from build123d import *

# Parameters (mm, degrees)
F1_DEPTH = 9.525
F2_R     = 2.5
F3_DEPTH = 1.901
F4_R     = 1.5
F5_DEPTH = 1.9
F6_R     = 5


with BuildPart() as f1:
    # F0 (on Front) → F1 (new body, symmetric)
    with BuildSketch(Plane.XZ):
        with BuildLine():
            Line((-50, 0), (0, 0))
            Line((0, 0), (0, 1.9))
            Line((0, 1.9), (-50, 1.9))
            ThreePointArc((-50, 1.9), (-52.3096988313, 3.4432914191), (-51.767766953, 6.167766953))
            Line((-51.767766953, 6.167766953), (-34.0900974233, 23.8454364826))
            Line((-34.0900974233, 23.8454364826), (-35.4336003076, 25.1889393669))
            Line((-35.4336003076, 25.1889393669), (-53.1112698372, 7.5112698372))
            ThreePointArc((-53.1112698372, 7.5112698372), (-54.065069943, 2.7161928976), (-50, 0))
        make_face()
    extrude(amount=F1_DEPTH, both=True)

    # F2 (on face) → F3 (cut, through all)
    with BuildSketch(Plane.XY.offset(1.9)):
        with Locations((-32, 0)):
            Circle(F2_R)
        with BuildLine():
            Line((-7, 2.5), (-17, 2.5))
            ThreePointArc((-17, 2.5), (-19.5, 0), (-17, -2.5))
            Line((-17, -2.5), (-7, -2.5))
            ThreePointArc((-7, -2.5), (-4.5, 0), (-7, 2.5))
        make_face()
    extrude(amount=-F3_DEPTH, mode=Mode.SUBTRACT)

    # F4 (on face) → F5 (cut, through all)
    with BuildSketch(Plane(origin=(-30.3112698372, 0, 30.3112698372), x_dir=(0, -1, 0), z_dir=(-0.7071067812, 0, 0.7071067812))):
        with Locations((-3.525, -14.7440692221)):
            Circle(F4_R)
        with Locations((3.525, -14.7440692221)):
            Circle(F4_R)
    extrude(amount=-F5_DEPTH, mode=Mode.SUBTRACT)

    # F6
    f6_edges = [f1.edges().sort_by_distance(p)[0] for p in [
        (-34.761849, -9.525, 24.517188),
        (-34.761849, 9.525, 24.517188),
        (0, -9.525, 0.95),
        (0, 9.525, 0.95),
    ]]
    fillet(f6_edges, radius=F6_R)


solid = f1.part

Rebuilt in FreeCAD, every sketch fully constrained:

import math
import FreeCAD as App
import Part
import Sketcher
Q = App.Units.Quantity


def edges_at(feature, points):
    """Names of the edges that pass closest to the given points."""
    edges = feature.Shape.Edges
    near = lambda p: min(range(len(edges)), key=lambda i: edges[i].distToShape(Part.Vertex(*p))[0])
    return sorted({f"Edge{near(p) + 1}" for p in points})

doc = App.newDocument("Part")
body = doc.addObject("PartDesign::Body", "Body")

sketch1 = body.newObject("Sketcher::SketchObject", "Sketch")
sketch1.AttachmentSupport = (doc.getObject("XZ_Plane"), [""])
sketch1.MapMode = "FlatFace"
sketch1.addGeometry([
    Part.LineSegment(App.Vector(-50, 0, 0), App.Vector(0, 0, 0)),
    Part.LineSegment(App.Vector(0, 0, 0), App.Vector(0, 1.9, 0)),
    Part.LineSegment(App.Vector(0, 1.9, 0), App.Vector(-50, 1.9, 0)),
    Part.ArcOfCircle(Part.Circle(App.Vector(-50, 4.4, 0), App.Vector(0, 0, 1), 2.5), math.radians(135), math.radians(270)),
    Part.LineSegment(App.Vector(-51.767767, 6.167767, 0), App.Vector(-34.090097, 23.845436, 0)),
    Part.LineSegment(App.Vector(-34.090097, 23.845436, 0), App.Vector(-35.4336, 25.188939, 0)),
    Part.LineSegment(App.Vector(-35.4336, 25.188939, 0), App.Vector(-53.11127, 7.51127, 0)),
    Part.ArcOfCircle(Part.Circle(App.Vector(-50, 4.4, 0), App.Vector(0, 0, 1), 4.4), math.radians(135), math.radians(270)),
], False)
sketch1.addConstraint([
    Sketcher.Constraint("Coincident", 0, 2, 1, 1),
    Sketcher.Constraint("Coincident", 1, 2, 2, 1),
    Sketcher.Constraint("Tangent", 2, 2, 3, 2),
    Sketcher.Constraint("Tangent", 3, 1, 4, 1),
    Sketcher.Constraint("Coincident", 4, 2, 5, 1),
    Sketcher.Constraint("Coincident", 5, 2, 6, 1),
    Sketcher.Constraint("Tangent", 6, 2, 7, 1),
    Sketcher.Constraint("Tangent", 7, 2, 0, 1),
    Sketcher.Constraint("Horizontal", 0),
    Sketcher.Constraint("Vertical", 1),
    Sketcher.Constraint("Horizontal", 2),
    Sketcher.Constraint("Coincident", 0, 2, -1, 1),
    Sketcher.Constraint("Coincident", 7, 3, 3, 3),
    Sketcher.Constraint("Perpendicular", 4, 5),
    Sketcher.Constraint("Perpendicular", 5, 6),
    Sketcher.Constraint("Radius", 3, 2.5),
    Sketcher.Constraint("Radius", 7, 4.4),
    Sketcher.Constraint("DistanceX", 0, 1, 0, 2, 50.0),
    Sketcher.Constraint("Angle", 4, Q("45 deg")),
    Sketcher.Constraint("Distance", 4, 25.0),
])
pad1 = body.newObject("PartDesign::Pad", "Pad")
pad1.Profile = sketch1
pad1.Length = 19.05
pad1.Midplane = True

sketch2 = body.newObject("Sketcher::SketchObject", "Sketch001")
sketch2.AttachmentSupport = (doc.getObject("XY_Plane"), [""])
sketch2.MapMode = "FlatFace"
sketch2.AttachmentOffset = App.Placement(App.Vector(0, 0, 1.9), App.Rotation())
sketch2.addGeometry([
    Part.Circle(App.Vector(-32, 0, 0), App.Vector(0, 0, 1), 2.5),
    Part.LineSegment(App.Vector(-7, 2.5, 0), App.Vector(-17, 2.5, 0)),
    Part.ArcOfCircle(Part.Circle(App.Vector(-17, 0, 0), App.Vector(0, 0, 1), 2.5), math.radians(90), math.radians(270)),
    Part.LineSegment(App.Vector(-17, -2.5, 0), App.Vector(-7, -2.5, 0)),
    Part.ArcOfCircle(Part.Circle(App.Vector(-7, 0, 0), App.Vector(0, 0, 1), 2.5), math.radians(-90), math.radians(90)),
], False)
sketch2.addConstraint([
    Sketcher.Constraint("Tangent", 1, 2, 2, 1),
    Sketcher.Constraint("Tangent", 2, 2, 3, 1),
    Sketcher.Constraint("Tangent", 3, 2, 4, 1),
    Sketcher.Constraint("Tangent", 4, 2, 1, 1),
    Sketcher.Constraint("Horizontal", 1),
    Sketcher.Constraint("Horizontal", 3),
    Sketcher.Constraint("Equal", 0, 2),
    Sketcher.Constraint("PointOnObject", 0, 3, -1),
    Sketcher.Constraint("PointOnObject", 2, 3, -1),
    Sketcher.Constraint("Diameter", 0, 5.0),
    Sketcher.Constraint("DistanceX", 1, 2, 1, 1, 10.0),
    Sketcher.Constraint("DistanceX", 0, 3, -1, 1, 32.0),
    Sketcher.Constraint("DistanceX", 2, 3, -1, 1, 17.0),
])
pocket1 = body.newObject("PartDesign::Pocket", "Pocket")
pocket1.Profile = sketch2
pocket1.Type = "ThroughAll"

sketch3 = body.newObject("Sketcher::SketchObject", "Sketch002")
sketch3.Placement = App.Placement(App.Vector(-30.31127, 0, 30.31127), App.Rotation(App.Vector(0, -1, 0), App.Vector(0.707106781, 0, 0.707106781), App.Vector(-0.707106781, 0, 0.707106781), "ZXY"))
sketch3.addGeometry([
    Part.Circle(App.Vector(-3.525, -14.744069, 0), App.Vector(0, 0, 1), 1.5),
    Part.Circle(App.Vector(3.525, -14.744069, 0), App.Vector(0, 0, 1), 1.5),
], False)
sketch3.addConstraint([
    Sketcher.Constraint("Equal", 0, 1),
    Sketcher.Constraint("Symmetric", 0, 3, 1, 3, -2),
    Sketcher.Constraint("Diameter", 0, 3.0),
    Sketcher.Constraint("DistanceX", 0, 3, 1, 3, 7.05),
    Sketcher.Constraint("DistanceY", 0, 3, -1, 1, 14.744069),
])
pocket2 = body.newObject("PartDesign::Pocket", "Pocket001")
pocket2.Profile = sketch3
pocket2.Length = 1.9
doc.recompute()

fillet = body.newObject("PartDesign::Fillet", "Fillet")
fillet.Base = (pocket2, edges_at(pocket2, [
    (-34.762, -9.525, 24.517),
    (-34.762, 9.525, 24.517),
    (0, -9.525, 0.95),
    (0, 9.525, 0.95),
]))
fillet.Radius = 5

doc.recompute()
